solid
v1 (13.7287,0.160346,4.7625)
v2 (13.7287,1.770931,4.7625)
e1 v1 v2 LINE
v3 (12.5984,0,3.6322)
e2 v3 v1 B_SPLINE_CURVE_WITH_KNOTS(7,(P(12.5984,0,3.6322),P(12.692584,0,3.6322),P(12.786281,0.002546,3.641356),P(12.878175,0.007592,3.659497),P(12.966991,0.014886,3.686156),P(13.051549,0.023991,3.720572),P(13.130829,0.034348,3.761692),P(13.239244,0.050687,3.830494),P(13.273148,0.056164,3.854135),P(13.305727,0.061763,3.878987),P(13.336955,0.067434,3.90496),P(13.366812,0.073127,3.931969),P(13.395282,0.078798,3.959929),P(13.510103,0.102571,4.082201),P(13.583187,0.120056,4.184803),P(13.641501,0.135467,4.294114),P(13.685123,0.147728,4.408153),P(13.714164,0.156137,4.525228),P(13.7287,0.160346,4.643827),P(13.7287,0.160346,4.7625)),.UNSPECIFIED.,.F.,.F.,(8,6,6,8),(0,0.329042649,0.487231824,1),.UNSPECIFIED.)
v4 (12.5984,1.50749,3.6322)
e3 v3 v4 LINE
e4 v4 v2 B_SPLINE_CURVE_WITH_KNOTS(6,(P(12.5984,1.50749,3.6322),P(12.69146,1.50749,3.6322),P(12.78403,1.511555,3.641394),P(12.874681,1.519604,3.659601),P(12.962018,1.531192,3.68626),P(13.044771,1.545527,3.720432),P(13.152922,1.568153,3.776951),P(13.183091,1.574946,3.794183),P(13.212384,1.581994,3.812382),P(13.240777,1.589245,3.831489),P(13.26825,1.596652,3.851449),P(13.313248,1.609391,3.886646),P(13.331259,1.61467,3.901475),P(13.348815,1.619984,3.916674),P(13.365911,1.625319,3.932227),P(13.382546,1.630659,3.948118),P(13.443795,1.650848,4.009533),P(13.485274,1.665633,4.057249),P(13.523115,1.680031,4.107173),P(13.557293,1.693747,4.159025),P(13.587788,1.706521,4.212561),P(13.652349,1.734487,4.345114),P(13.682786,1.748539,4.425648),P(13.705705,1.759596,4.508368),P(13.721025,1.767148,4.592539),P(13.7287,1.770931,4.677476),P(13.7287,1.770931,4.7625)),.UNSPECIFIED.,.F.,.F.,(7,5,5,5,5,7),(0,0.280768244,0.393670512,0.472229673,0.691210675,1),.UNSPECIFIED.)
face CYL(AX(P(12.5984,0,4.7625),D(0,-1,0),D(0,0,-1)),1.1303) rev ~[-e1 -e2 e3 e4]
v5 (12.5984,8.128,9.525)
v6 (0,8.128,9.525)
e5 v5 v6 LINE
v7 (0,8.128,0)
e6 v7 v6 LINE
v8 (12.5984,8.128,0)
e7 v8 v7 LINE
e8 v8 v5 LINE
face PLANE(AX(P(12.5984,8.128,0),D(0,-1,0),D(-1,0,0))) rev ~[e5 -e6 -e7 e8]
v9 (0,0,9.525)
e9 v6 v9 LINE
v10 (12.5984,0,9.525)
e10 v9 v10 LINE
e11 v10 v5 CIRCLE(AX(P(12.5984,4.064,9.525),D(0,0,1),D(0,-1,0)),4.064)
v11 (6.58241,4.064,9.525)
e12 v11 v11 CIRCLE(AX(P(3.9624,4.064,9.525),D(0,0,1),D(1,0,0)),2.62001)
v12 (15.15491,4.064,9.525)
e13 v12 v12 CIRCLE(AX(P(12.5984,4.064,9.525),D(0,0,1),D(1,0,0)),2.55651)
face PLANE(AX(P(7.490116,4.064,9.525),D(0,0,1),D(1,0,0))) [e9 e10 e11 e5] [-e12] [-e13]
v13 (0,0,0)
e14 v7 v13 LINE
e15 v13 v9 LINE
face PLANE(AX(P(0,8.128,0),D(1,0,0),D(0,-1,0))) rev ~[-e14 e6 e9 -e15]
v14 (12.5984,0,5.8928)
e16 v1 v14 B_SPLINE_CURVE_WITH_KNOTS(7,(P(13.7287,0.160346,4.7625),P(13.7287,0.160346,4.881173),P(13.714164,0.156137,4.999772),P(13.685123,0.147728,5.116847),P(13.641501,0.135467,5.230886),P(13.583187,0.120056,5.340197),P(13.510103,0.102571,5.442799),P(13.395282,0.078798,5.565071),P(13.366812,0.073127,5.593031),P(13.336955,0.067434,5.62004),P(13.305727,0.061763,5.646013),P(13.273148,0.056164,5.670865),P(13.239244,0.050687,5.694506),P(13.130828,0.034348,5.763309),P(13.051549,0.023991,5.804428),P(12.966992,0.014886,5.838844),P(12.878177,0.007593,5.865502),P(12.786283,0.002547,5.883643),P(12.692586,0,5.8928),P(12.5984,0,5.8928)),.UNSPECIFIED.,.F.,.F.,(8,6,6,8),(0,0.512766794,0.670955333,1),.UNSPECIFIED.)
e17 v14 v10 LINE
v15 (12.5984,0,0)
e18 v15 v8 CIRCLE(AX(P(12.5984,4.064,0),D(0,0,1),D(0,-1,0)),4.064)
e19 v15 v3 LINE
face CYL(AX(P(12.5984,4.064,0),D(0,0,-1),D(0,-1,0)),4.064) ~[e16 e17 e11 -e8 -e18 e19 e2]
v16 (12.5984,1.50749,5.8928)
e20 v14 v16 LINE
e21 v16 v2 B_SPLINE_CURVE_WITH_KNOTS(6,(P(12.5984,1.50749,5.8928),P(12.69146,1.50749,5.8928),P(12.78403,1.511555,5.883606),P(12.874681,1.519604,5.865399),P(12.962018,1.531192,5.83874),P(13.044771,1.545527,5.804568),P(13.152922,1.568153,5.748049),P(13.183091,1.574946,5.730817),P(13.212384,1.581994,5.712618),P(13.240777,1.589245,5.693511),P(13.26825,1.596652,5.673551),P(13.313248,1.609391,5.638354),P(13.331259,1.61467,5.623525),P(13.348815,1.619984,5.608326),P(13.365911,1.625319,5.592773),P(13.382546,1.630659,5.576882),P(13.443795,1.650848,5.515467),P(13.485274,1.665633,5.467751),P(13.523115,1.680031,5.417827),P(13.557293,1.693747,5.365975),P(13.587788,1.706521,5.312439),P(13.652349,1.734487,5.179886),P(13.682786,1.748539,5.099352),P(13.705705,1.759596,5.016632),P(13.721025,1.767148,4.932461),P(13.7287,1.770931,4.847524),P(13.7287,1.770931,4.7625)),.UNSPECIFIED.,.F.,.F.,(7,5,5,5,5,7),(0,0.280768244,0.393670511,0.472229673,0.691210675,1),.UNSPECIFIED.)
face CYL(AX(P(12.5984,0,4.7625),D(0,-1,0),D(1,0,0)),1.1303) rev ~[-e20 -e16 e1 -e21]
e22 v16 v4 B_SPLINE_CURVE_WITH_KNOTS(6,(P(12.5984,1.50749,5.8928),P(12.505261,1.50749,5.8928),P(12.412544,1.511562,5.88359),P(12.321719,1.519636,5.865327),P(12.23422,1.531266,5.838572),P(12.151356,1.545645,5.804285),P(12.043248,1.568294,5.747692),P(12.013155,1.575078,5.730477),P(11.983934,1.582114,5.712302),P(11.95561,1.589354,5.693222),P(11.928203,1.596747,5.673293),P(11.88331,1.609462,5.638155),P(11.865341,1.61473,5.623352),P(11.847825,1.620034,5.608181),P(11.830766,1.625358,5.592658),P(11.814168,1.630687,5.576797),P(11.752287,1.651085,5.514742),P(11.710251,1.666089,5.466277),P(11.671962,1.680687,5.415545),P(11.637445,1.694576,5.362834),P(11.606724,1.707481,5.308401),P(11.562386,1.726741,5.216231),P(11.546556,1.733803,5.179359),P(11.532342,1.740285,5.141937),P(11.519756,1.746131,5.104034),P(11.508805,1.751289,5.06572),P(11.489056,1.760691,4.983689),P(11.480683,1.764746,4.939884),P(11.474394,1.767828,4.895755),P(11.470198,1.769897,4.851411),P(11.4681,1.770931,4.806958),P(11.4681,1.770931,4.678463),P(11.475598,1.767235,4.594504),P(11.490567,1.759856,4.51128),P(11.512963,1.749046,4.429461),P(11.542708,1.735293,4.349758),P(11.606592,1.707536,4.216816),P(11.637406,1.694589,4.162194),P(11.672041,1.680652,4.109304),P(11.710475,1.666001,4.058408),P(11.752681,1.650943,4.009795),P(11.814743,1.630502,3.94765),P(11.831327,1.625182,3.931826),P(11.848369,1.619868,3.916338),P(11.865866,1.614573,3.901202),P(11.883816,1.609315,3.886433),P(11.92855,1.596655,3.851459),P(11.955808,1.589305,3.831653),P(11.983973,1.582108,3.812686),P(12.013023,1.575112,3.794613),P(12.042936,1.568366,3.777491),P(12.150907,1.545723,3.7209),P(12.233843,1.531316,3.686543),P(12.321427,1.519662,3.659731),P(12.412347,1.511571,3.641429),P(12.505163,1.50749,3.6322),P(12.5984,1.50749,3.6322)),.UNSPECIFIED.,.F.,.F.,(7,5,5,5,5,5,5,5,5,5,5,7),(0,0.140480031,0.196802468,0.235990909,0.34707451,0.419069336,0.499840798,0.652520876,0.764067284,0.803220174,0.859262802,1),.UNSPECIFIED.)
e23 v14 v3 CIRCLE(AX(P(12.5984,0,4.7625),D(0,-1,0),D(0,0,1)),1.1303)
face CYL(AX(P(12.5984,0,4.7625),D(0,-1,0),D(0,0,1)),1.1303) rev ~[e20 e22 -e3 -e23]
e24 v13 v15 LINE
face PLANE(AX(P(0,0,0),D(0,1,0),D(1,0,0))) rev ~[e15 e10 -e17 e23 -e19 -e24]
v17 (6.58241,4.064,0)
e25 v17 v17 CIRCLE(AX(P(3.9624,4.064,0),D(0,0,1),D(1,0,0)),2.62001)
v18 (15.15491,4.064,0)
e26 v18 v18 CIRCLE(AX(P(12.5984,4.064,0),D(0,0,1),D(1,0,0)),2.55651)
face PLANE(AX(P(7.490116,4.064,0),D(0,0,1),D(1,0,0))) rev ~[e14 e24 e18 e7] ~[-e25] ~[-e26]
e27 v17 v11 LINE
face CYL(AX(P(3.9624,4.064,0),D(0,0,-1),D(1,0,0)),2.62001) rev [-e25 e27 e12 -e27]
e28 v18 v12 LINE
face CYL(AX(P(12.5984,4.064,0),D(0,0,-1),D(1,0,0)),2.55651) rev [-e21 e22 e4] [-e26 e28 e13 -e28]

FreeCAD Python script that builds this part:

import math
import FreeCAD as App
import Part
import Sketcher

V = App.Vector
Q = App.Units.Quantity

doc = App.newDocument("Part")
body = doc.addObject("PartDesign::Body", "Body")

sketch1 = body.newObject("Sketcher::SketchObject", "Sketch")
sketch1.AttachmentSupport = (doc.getObject("XY_Plane"), [""])
sketch1.MapMode = "FlatFace"
sketch1.addGeometry(Part.LineSegment(V(0, 8.128, 0), V(0, 0, 0)), False)
sketch1.addGeometry(Part.LineSegment(V(0, 0, 0), V(12.5984, 0, 0)), False)
sketch1.addGeometry(Part.ArcOfCircle(Part.Circle(V(12.5984, 4.064, 0), V(0, 0, 1), 4.064), math.radians(-90), math.radians(90)), False)
sketch1.addGeometry(Part.LineSegment(V(12.5984, 8.128, 0), V(0, 8.128, 0)), False)
sketch1.addGeometry(Part.Circle(V(3.9624, 4.064, 0), V(0, 0, 1), 2.62001), False)
sketch1.addGeometry(Part.Circle(V(12.5984, 4.064, 0), V(0, 0, 1), 2.55651), False)
sketch1.addConstraint(Sketcher.Constraint("Coincident", 0, 2, 1, 1))
sketch1.addConstraint(Sketcher.Constraint("Tangent", 1, 2, 2, 1))
sketch1.addConstraint(Sketcher.Constraint("Tangent", 2, 2, 3, 1))
sketch1.addConstraint(Sketcher.Constraint("Coincident", 3, 2, 0, 1))
sketch1.addConstraint(Sketcher.Constraint("Vertical", 0))
sketch1.addConstraint(Sketcher.Constraint("Horizontal", 1))
sketch1.addConstraint(Sketcher.Constraint("Horizontal", 3))
sketch1.addConstraint(Sketcher.Constraint("Coincident", 0, 2, -1, 1))
sketch1.addConstraint(Sketcher.Constraint("Coincident", 5, 3, 2, 3))
sketch1.addConstraint(Sketcher.Constraint("Horizontal", 2, 3, 4, 3))
sketch1.addConstraint(Sketcher.Constraint("Radius", 2, Q("0.16 in")))
sketch1.addConstraint(Sketcher.Constraint("Diameter", 4, Q("0.2063 in")))
sketch1.addConstraint(Sketcher.Constraint("Diameter", 5, Q("0.2013 in")))
sketch1.addConstraint(Sketcher.Constraint("DistanceX", 1, 1, 1, 2, Q("0.496 in")))
sketch1.addConstraint(Sketcher.Constraint("DistanceX", 4, 3, 2, 3, Q("0.34 in")))
pad1 = body.newObject("PartDesign::Pad", "Pad")
pad1.Profile = sketch1
pad1.Length = Q("0.375 in")

sketch2 = body.newObject("Sketcher::SketchObject", "Sketch001")
sketch2.AttachmentSupport = (doc.getObject("XZ_Plane"), [""])
sketch2.MapMode = "FlatFace"
sketch2.addGeometry(Part.ArcOfCircle(Part.Circle(V(12.5984, 4.7625, 0), V(0, 0, 1), 1.1303), math.radians(90), math.radians(270)), False)
sketch2.addGeometry(Part.ArcOfCircle(Part.Circle(V(12.5984, 4.7625, 0), V(0, 0, 1), 1.1303), math.radians(-90), math.radians(0)), False)
sketch2.addGeometry(Part.ArcOfCircle(Part.Circle(V(12.5984, 4.7625, 0), V(0, 0, 1), 1.1303), math.radians(0), math.radians(90)), False)
sketch2.addConstraint(Sketcher.Constraint("Tangent", 0, 2, 1, 1))
sketch2.addConstraint(Sketcher.Constraint("Tangent", 1, 2, 2, 1))
sketch2.addConstraint(Sketcher.Constraint("Tangent", 2, 2, 0, 1))
sketch2.addConstraint(Sketcher.Constraint("Horizontal", 2, 3, 1, 2))
sketch2.addConstraint(Sketcher.Constraint("Vertical", 2, 3, 0, 2))
sketch2.addConstraint(Sketcher.Constraint("Vertical", 0, 2, 2, 2))
sketch2.addConstraint(Sketcher.Constraint("Radius", 0, Q("0.0445 in")))
sketch2.addConstraint(Sketcher.Constraint("DistanceX", -1, 1, 0, 3, Q("0.496 in")))
sketch2.addConstraint(Sketcher.Constraint("DistanceY", -1, 1, 0, 3, Q("0.1875 in")))
pocket1 = body.newObject("PartDesign::Pocket", "Pocket")
pocket1.Profile = sketch2
pocket1.Length = 1.771931

doc.recompute()
